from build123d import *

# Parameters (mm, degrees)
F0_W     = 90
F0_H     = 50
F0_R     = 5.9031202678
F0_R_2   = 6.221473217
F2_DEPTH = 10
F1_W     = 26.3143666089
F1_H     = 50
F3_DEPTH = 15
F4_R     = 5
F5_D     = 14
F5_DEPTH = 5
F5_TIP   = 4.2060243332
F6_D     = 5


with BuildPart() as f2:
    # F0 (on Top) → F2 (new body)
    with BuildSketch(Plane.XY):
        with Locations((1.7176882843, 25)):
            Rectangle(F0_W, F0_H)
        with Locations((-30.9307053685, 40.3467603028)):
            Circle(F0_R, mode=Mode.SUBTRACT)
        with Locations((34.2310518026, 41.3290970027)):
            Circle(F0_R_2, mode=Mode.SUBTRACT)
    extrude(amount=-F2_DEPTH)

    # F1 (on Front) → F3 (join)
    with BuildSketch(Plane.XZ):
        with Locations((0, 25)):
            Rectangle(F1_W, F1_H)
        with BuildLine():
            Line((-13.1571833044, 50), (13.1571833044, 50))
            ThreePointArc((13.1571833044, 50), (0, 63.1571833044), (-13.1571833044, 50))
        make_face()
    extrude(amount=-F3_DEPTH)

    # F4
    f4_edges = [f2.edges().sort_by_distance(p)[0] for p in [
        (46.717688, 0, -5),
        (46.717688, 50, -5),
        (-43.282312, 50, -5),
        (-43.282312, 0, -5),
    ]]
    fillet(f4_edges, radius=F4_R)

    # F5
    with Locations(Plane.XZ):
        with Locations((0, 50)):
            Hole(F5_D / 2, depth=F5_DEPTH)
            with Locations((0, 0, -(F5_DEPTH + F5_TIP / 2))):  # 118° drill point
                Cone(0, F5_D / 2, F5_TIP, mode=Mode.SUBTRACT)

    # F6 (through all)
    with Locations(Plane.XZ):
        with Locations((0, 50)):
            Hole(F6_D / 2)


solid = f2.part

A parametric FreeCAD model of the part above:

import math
import FreeCAD as App
import Part
import Sketcher
from FreeCAD import Vector
Q = App.Units.Quantity


def edges_at(feature, points):
    """Names of the edges that pass closest to the given points."""
    edges = feature.Shape.Edges
    near = lambda p: min(range(len(edges)), key=lambda i: edges[i].distToShape(Part.Vertex(*p))[0])
    return sorted({f"Edge{near(p) + 1}" for p in points})


def add_polygon(sketch, points):
    """Adds a closed chain of lines whose ends are joined by coincident constraints."""
    first, n = sketch.GeometryCount, len(points)
    for a, b in zip(points, points[1:] + points[:1]):
        sketch.addGeometry(Part.LineSegment(App.Vector(*a, 0), App.Vector(*b, 0)), False)
    for i in range(n):
        sketch.addConstraint(Sketcher.Constraint("Coincident", first + i, 2, first + (i + 1) % n, 1))

doc = App.newDocument("Part")
body = doc.addObject("PartDesign::Body", "Body")

# Sketch on XY plane
sketch1 = body.newObject("Sketcher::SketchObject", "Sketch")
sketch1.AttachmentSupport = (doc.getObject("XY_Plane"), [""])
sketch1.MapMode = "FlatFace"
add_polygon(sketch1, [(-43, 50), (-43, 0), (47, 0), (47, 50)])  # lines 0-3
sketch1.addGeometry(Part.Circle(Vector(-31, 40, 0), Vector(0, 0, 1), 6), False)  # 4
sketch1.addGeometry(Part.Circle(Vector(34, 41, 0), Vector(0, 0, 1), 6), False)  # 5
sketch1.addConstraint([
    Sketcher.Constraint("Vertical", 0),
    Sketcher.Constraint("Horizontal", 1),
    Sketcher.Constraint("Vertical", 2),
    Sketcher.Constraint("Horizontal", 3),
    Sketcher.Constraint("PointOnObject", 0, 2, -1),
    Sketcher.Constraint("DistanceX", 1, 1, 1, 2, Q("90 mm")),
    Sketcher.Constraint("DistanceY", 0, 2, 0, 1, Q("50 mm")),
    Sketcher.Constraint("Diameter", 4, Q("11.806241 mm")),
    Sketcher.Constraint("Diameter", 5, Q("12.442946 mm")),
    Sketcher.Constraint("DistanceY", -1, 1, 4, 3, Q("40.34676 mm")),
    Sketcher.Constraint("DistanceX", -1, 1, 5, 3, Q("34.231052 mm")),
    Sketcher.Constraint("DistanceX", 0, 2, -1, 1, Q("43.282312 mm")),
    Sketcher.Constraint("DistanceX", 4, 3, -1, 1, Q("30.930705 mm")),
    Sketcher.Constraint("DistanceY", -1, 1, 5, 3, Q("41.329097 mm")),
])
pad1 = body.newObject("PartDesign::Pad", "Pad")
pad1.Profile = sketch1
pad1.Length = 10
pad1.Reversed = True

# Sketch on XZ plane
sketch2 = body.newObject("Sketcher::SketchObject", "Sketch001")
sketch2.AttachmentSupport = (doc.getObject("XZ_Plane"), [""])
sketch2.MapMode = "FlatFace"
sketch2.addGeometry([
    Part.LineSegment(Vector(-13, 50, 0), Vector(-13, 0, 0)),
    Part.LineSegment(Vector(-13, 0, 0), Vector(13, 0, 0)),
    Part.LineSegment(Vector(13, 0, 0), Vector(13, 50, 0)),
    Part.ArcOfCircle(Part.Circle(Vector(0, 50, 0), Vector(0, 0, 1), 13), math.radians(0), math.radians(180)),
], False)
sketch2.addConstraint([
    Sketcher.Constraint("Coincident", 0, 2, 1, 1),
    Sketcher.Constraint("Coincident", 1, 2, 2, 1),
    Sketcher.Constraint("Tangent", 2, 2, 3, 1),
    Sketcher.Constraint("Tangent", 3, 2, 0, 1),
    Sketcher.Constraint("Vertical", 0),
    Sketcher.Constraint("Horizontal", 1),
    Sketcher.Constraint("Vertical", 2),
    Sketcher.Constraint("Symmetric", 0, 2, 1, 2, -1, 1),
    Sketcher.Constraint("DistanceY", 0, 2, 0, 1, Q("50 mm")),
    Sketcher.Constraint("Radius", 3, Q("13.157183 mm")),
])
pad2 = body.newObject("PartDesign::Pad", "Pad001")
pad2.Profile = sketch2
pad2.Length = 15
pad2.Reversed = True
doc.recompute()

fillet = body.newObject("PartDesign::Fillet", "Fillet")
fillet.Base = (pad2, edges_at(pad2, [
    (46.718, 0, -5),
    (46.718, 50, -5),
    (-43.282, 50, -5),
    (-43.282, 0, -5),
]))
fillet.Radius = 5

# Sketch on XZ plane
sketch3 = body.newObject("Sketcher::SketchObject", "Sketch002")
sketch3.AttachmentSupport = (doc.getObject("XZ_Plane"), [""])
sketch3.MapMode = "FlatFace"
sketch3.addGeometry(Part.Circle(Vector(0, 50, 0), Vector(0, 0, 1), 7), False)
sketch3.addConstraint([
    Sketcher.Constraint("PointOnObject", 0, 3, -2),
    Sketcher.Constraint("Diameter", 0, Q("14 mm")),
    Sketcher.Constraint("DistanceY", -1, 1, 0, 3, Q("50 mm")),
])
doc.recompute()
hole = body.newObject("PartDesign::Hole", "Hole")
hole.Profile = sketch3
hole.ThreadType = "None"
hole.Diameter = 14
hole.DepthType = "Dimension"
hole.Depth = 5
hole.DrillPoint = "Angled"
hole.DrillPointAngle = 118

# Sketch on XZ plane
sketch4 = body.newObject("Sketcher::SketchObject", "Sketch003")
sketch4.AttachmentSupport = (doc.getObject("XZ_Plane"), [""])
sketch4.MapMode = "FlatFace"
sketch4.addGeometry(Part.Circle(Vector(0, 50, 0), Vector(0, 0, 1), 2.5), False)
sketch4.addConstraint([
    Sketcher.Constraint("PointOnObject", 0, 3, -2),
    Sketcher.Constraint("Diameter", 0, Q("5 mm")),
    Sketcher.Constraint("DistanceY", -1, 1, 0, 3, Q("50 mm")),
])
doc.recompute()
hole2 = body.newObject("PartDesign::Hole", "Hole001")
hole2.Profile = sketch4
hole2.ThreadType = "None"
hole2.Diameter = 5
hole2.DepthType = "ThroughAll"

doc.recompute()
